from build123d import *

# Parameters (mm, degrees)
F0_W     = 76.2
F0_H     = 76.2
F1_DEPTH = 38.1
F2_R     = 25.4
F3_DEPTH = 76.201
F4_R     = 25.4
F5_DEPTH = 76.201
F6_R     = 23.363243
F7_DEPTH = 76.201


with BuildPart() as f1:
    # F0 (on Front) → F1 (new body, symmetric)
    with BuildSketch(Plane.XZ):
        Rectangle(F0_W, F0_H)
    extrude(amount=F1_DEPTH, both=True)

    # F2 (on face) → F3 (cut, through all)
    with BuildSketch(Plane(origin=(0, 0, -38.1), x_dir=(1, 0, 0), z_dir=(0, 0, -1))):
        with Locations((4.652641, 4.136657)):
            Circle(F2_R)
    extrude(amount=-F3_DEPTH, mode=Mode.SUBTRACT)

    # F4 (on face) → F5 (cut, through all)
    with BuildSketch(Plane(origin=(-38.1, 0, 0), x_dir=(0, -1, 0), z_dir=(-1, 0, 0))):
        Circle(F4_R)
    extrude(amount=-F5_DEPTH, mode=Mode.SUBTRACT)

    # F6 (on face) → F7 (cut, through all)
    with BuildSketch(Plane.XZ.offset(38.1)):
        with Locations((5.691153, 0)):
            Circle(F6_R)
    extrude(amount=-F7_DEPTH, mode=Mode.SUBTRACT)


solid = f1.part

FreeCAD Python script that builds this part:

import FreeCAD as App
import Part
import Sketcher
Q = App.Units.Quantity

doc = App.newDocument("Part")
body = doc.addObject("PartDesign::Body", "Body")

# Sketch on XZ plane
sketch1 = body.newObject("Sketcher::SketchObject", "Sketch")
sketch1.AttachmentSupport = (doc.getObject("XZ_Plane"), [""])
sketch1.MapMode = "FlatFace"
sketch1.addGeometry(Part.LineSegment(App.Vector(-38, 38, 0), App.Vector(-38, -38, 0)), False)
sketch1.addGeometry(Part.LineSegment(App.Vector(-38, -38, 0), App.Vector(38, -38, 0)), False)
sketch1.addGeometry(Part.LineSegment(App.Vector(38, -38, 0), App.Vector(38, 38, 0)), False)
sketch1.addGeometry(Part.LineSegment(App.Vector(38, 38, 0), App.Vector(-38, 38, 0)), False)
sketch1.addConstraint(Sketcher.Constraint("Coincident", 0, 2, 1, 1))
sketch1.addConstraint(Sketcher.Constraint("Coincident", 1, 2, 2, 1))
sketch1.addConstraint(Sketcher.Constraint("Coincident", 2, 2, 3, 1))
sketch1.addConstraint(Sketcher.Constraint("Coincident", 3, 2, 0, 1))
sketch1.addConstraint(Sketcher.Constraint("Vertical", 0))
sketch1.addConstraint(Sketcher.Constraint("Horizontal", 1))
sketch1.addConstraint(Sketcher.Constraint("Vertical", 2))
sketch1.addConstraint(Sketcher.Constraint("Horizontal", 3))
sketch1.addConstraint(Sketcher.Constraint("Symmetric", 0, 2, 2, 2, -1, 1))
sketch1.addConstraint(Sketcher.Constraint("Equal", 3, 0))
sketch1.addConstraint(Sketcher.Constraint("DistanceX", 1, 1, 1, 2, Q("3 in")))
pad1 = body.newObject("PartDesign::Pad", "Pad")
pad1.Profile = sketch1
pad1.Length = Q("3 in")
pad1.Midplane = True

# Sketch on XY plane
sketch2 = body.newObject("Sketcher::SketchObject", "Sketch001")
sketch2.AttachmentSupport = (doc.getObject("XY_Plane"), [""])
sketch2.MapMode = "FlatFace"
sketch2.AttachmentOffset = App.Placement(App.Vector(0, 0, -1.5 * 25.4), App.Rotation())
sketch2.addGeometry(Part.Circle(App.Vector(5, -4, 0), App.Vector(0, 0, 1), 25), False)
sketch2.addConstraint(Sketcher.Constraint("Diameter", 0, Q("2 in")))
sketch2.addConstraint(Sketcher.Constraint("DistanceX", -1, 1, 0, 3, Q("4.652641 mm")))
sketch2.addConstraint(Sketcher.Constraint("DistanceY", 0, 3, -1, 1, Q("4.136657 mm")))
pocket1 = body.newObject("PartDesign::Pocket", "Pocket")
pocket1.Profile = sketch2
pocket1.Type = "ThroughAll"
pocket1.Reversed = True

# Sketch on YZ plane
sketch3 = body.newObject("Sketcher::SketchObject", "Sketch002")
sketch3.AttachmentSupport = (doc.getObject("YZ_Plane"), [""])
sketch3.MapMode = "FlatFace"
sketch3.AttachmentOffset = App.Placement(App.Vector(0, 0, -1.5 * 25.4), App.Rotation())
sketch3.addGeometry(Part.Circle(App.Vector(0, 0, 0), App.Vector(0, 0, 1), 25), False)
sketch3.addConstraint(Sketcher.Constraint("Coincident", 0, 3, -1, 1))
sketch3.addConstraint(Sketcher.Constraint("Diameter", 0, Q("2 in")))
pocket2 = body.newObject("PartDesign::Pocket", "Pocket001")
pocket2.Profile = sketch3
pocket2.Type = "ThroughAll"
pocket2.Reversed = True

# Sketch on XZ plane
sketch4 = body.newObject("Sketcher::SketchObject", "Sketch003")
sketch4.AttachmentSupport = (doc.getObject("XZ_Plane"), [""])
sketch4.MapMode = "FlatFace"
sketch4.AttachmentOffset = App.Placement(App.Vector(0, 0, 1.5 * 25.4), App.Rotation())
sketch4.addGeometry(Part.Circle(App.Vector(6, 0, 0), App.Vector(0, 0, 1), 23), False)
sketch4.addConstraint(Sketcher.Constraint("PointOnObject", 0, 3, -1))
sketch4.addConstraint(Sketcher.Constraint("Diameter", 0, Q("46.726486 mm")))
sketch4.addConstraint(Sketcher.Constraint("DistanceX", -1, 1, 0, 3, Q("5.691153 mm")))
pocket3 = body.newObject("PartDesign::Pocket", "Pocket002")
pocket3.Profile = sketch4
pocket3.Type = "ThroughAll"

doc.recompute()
